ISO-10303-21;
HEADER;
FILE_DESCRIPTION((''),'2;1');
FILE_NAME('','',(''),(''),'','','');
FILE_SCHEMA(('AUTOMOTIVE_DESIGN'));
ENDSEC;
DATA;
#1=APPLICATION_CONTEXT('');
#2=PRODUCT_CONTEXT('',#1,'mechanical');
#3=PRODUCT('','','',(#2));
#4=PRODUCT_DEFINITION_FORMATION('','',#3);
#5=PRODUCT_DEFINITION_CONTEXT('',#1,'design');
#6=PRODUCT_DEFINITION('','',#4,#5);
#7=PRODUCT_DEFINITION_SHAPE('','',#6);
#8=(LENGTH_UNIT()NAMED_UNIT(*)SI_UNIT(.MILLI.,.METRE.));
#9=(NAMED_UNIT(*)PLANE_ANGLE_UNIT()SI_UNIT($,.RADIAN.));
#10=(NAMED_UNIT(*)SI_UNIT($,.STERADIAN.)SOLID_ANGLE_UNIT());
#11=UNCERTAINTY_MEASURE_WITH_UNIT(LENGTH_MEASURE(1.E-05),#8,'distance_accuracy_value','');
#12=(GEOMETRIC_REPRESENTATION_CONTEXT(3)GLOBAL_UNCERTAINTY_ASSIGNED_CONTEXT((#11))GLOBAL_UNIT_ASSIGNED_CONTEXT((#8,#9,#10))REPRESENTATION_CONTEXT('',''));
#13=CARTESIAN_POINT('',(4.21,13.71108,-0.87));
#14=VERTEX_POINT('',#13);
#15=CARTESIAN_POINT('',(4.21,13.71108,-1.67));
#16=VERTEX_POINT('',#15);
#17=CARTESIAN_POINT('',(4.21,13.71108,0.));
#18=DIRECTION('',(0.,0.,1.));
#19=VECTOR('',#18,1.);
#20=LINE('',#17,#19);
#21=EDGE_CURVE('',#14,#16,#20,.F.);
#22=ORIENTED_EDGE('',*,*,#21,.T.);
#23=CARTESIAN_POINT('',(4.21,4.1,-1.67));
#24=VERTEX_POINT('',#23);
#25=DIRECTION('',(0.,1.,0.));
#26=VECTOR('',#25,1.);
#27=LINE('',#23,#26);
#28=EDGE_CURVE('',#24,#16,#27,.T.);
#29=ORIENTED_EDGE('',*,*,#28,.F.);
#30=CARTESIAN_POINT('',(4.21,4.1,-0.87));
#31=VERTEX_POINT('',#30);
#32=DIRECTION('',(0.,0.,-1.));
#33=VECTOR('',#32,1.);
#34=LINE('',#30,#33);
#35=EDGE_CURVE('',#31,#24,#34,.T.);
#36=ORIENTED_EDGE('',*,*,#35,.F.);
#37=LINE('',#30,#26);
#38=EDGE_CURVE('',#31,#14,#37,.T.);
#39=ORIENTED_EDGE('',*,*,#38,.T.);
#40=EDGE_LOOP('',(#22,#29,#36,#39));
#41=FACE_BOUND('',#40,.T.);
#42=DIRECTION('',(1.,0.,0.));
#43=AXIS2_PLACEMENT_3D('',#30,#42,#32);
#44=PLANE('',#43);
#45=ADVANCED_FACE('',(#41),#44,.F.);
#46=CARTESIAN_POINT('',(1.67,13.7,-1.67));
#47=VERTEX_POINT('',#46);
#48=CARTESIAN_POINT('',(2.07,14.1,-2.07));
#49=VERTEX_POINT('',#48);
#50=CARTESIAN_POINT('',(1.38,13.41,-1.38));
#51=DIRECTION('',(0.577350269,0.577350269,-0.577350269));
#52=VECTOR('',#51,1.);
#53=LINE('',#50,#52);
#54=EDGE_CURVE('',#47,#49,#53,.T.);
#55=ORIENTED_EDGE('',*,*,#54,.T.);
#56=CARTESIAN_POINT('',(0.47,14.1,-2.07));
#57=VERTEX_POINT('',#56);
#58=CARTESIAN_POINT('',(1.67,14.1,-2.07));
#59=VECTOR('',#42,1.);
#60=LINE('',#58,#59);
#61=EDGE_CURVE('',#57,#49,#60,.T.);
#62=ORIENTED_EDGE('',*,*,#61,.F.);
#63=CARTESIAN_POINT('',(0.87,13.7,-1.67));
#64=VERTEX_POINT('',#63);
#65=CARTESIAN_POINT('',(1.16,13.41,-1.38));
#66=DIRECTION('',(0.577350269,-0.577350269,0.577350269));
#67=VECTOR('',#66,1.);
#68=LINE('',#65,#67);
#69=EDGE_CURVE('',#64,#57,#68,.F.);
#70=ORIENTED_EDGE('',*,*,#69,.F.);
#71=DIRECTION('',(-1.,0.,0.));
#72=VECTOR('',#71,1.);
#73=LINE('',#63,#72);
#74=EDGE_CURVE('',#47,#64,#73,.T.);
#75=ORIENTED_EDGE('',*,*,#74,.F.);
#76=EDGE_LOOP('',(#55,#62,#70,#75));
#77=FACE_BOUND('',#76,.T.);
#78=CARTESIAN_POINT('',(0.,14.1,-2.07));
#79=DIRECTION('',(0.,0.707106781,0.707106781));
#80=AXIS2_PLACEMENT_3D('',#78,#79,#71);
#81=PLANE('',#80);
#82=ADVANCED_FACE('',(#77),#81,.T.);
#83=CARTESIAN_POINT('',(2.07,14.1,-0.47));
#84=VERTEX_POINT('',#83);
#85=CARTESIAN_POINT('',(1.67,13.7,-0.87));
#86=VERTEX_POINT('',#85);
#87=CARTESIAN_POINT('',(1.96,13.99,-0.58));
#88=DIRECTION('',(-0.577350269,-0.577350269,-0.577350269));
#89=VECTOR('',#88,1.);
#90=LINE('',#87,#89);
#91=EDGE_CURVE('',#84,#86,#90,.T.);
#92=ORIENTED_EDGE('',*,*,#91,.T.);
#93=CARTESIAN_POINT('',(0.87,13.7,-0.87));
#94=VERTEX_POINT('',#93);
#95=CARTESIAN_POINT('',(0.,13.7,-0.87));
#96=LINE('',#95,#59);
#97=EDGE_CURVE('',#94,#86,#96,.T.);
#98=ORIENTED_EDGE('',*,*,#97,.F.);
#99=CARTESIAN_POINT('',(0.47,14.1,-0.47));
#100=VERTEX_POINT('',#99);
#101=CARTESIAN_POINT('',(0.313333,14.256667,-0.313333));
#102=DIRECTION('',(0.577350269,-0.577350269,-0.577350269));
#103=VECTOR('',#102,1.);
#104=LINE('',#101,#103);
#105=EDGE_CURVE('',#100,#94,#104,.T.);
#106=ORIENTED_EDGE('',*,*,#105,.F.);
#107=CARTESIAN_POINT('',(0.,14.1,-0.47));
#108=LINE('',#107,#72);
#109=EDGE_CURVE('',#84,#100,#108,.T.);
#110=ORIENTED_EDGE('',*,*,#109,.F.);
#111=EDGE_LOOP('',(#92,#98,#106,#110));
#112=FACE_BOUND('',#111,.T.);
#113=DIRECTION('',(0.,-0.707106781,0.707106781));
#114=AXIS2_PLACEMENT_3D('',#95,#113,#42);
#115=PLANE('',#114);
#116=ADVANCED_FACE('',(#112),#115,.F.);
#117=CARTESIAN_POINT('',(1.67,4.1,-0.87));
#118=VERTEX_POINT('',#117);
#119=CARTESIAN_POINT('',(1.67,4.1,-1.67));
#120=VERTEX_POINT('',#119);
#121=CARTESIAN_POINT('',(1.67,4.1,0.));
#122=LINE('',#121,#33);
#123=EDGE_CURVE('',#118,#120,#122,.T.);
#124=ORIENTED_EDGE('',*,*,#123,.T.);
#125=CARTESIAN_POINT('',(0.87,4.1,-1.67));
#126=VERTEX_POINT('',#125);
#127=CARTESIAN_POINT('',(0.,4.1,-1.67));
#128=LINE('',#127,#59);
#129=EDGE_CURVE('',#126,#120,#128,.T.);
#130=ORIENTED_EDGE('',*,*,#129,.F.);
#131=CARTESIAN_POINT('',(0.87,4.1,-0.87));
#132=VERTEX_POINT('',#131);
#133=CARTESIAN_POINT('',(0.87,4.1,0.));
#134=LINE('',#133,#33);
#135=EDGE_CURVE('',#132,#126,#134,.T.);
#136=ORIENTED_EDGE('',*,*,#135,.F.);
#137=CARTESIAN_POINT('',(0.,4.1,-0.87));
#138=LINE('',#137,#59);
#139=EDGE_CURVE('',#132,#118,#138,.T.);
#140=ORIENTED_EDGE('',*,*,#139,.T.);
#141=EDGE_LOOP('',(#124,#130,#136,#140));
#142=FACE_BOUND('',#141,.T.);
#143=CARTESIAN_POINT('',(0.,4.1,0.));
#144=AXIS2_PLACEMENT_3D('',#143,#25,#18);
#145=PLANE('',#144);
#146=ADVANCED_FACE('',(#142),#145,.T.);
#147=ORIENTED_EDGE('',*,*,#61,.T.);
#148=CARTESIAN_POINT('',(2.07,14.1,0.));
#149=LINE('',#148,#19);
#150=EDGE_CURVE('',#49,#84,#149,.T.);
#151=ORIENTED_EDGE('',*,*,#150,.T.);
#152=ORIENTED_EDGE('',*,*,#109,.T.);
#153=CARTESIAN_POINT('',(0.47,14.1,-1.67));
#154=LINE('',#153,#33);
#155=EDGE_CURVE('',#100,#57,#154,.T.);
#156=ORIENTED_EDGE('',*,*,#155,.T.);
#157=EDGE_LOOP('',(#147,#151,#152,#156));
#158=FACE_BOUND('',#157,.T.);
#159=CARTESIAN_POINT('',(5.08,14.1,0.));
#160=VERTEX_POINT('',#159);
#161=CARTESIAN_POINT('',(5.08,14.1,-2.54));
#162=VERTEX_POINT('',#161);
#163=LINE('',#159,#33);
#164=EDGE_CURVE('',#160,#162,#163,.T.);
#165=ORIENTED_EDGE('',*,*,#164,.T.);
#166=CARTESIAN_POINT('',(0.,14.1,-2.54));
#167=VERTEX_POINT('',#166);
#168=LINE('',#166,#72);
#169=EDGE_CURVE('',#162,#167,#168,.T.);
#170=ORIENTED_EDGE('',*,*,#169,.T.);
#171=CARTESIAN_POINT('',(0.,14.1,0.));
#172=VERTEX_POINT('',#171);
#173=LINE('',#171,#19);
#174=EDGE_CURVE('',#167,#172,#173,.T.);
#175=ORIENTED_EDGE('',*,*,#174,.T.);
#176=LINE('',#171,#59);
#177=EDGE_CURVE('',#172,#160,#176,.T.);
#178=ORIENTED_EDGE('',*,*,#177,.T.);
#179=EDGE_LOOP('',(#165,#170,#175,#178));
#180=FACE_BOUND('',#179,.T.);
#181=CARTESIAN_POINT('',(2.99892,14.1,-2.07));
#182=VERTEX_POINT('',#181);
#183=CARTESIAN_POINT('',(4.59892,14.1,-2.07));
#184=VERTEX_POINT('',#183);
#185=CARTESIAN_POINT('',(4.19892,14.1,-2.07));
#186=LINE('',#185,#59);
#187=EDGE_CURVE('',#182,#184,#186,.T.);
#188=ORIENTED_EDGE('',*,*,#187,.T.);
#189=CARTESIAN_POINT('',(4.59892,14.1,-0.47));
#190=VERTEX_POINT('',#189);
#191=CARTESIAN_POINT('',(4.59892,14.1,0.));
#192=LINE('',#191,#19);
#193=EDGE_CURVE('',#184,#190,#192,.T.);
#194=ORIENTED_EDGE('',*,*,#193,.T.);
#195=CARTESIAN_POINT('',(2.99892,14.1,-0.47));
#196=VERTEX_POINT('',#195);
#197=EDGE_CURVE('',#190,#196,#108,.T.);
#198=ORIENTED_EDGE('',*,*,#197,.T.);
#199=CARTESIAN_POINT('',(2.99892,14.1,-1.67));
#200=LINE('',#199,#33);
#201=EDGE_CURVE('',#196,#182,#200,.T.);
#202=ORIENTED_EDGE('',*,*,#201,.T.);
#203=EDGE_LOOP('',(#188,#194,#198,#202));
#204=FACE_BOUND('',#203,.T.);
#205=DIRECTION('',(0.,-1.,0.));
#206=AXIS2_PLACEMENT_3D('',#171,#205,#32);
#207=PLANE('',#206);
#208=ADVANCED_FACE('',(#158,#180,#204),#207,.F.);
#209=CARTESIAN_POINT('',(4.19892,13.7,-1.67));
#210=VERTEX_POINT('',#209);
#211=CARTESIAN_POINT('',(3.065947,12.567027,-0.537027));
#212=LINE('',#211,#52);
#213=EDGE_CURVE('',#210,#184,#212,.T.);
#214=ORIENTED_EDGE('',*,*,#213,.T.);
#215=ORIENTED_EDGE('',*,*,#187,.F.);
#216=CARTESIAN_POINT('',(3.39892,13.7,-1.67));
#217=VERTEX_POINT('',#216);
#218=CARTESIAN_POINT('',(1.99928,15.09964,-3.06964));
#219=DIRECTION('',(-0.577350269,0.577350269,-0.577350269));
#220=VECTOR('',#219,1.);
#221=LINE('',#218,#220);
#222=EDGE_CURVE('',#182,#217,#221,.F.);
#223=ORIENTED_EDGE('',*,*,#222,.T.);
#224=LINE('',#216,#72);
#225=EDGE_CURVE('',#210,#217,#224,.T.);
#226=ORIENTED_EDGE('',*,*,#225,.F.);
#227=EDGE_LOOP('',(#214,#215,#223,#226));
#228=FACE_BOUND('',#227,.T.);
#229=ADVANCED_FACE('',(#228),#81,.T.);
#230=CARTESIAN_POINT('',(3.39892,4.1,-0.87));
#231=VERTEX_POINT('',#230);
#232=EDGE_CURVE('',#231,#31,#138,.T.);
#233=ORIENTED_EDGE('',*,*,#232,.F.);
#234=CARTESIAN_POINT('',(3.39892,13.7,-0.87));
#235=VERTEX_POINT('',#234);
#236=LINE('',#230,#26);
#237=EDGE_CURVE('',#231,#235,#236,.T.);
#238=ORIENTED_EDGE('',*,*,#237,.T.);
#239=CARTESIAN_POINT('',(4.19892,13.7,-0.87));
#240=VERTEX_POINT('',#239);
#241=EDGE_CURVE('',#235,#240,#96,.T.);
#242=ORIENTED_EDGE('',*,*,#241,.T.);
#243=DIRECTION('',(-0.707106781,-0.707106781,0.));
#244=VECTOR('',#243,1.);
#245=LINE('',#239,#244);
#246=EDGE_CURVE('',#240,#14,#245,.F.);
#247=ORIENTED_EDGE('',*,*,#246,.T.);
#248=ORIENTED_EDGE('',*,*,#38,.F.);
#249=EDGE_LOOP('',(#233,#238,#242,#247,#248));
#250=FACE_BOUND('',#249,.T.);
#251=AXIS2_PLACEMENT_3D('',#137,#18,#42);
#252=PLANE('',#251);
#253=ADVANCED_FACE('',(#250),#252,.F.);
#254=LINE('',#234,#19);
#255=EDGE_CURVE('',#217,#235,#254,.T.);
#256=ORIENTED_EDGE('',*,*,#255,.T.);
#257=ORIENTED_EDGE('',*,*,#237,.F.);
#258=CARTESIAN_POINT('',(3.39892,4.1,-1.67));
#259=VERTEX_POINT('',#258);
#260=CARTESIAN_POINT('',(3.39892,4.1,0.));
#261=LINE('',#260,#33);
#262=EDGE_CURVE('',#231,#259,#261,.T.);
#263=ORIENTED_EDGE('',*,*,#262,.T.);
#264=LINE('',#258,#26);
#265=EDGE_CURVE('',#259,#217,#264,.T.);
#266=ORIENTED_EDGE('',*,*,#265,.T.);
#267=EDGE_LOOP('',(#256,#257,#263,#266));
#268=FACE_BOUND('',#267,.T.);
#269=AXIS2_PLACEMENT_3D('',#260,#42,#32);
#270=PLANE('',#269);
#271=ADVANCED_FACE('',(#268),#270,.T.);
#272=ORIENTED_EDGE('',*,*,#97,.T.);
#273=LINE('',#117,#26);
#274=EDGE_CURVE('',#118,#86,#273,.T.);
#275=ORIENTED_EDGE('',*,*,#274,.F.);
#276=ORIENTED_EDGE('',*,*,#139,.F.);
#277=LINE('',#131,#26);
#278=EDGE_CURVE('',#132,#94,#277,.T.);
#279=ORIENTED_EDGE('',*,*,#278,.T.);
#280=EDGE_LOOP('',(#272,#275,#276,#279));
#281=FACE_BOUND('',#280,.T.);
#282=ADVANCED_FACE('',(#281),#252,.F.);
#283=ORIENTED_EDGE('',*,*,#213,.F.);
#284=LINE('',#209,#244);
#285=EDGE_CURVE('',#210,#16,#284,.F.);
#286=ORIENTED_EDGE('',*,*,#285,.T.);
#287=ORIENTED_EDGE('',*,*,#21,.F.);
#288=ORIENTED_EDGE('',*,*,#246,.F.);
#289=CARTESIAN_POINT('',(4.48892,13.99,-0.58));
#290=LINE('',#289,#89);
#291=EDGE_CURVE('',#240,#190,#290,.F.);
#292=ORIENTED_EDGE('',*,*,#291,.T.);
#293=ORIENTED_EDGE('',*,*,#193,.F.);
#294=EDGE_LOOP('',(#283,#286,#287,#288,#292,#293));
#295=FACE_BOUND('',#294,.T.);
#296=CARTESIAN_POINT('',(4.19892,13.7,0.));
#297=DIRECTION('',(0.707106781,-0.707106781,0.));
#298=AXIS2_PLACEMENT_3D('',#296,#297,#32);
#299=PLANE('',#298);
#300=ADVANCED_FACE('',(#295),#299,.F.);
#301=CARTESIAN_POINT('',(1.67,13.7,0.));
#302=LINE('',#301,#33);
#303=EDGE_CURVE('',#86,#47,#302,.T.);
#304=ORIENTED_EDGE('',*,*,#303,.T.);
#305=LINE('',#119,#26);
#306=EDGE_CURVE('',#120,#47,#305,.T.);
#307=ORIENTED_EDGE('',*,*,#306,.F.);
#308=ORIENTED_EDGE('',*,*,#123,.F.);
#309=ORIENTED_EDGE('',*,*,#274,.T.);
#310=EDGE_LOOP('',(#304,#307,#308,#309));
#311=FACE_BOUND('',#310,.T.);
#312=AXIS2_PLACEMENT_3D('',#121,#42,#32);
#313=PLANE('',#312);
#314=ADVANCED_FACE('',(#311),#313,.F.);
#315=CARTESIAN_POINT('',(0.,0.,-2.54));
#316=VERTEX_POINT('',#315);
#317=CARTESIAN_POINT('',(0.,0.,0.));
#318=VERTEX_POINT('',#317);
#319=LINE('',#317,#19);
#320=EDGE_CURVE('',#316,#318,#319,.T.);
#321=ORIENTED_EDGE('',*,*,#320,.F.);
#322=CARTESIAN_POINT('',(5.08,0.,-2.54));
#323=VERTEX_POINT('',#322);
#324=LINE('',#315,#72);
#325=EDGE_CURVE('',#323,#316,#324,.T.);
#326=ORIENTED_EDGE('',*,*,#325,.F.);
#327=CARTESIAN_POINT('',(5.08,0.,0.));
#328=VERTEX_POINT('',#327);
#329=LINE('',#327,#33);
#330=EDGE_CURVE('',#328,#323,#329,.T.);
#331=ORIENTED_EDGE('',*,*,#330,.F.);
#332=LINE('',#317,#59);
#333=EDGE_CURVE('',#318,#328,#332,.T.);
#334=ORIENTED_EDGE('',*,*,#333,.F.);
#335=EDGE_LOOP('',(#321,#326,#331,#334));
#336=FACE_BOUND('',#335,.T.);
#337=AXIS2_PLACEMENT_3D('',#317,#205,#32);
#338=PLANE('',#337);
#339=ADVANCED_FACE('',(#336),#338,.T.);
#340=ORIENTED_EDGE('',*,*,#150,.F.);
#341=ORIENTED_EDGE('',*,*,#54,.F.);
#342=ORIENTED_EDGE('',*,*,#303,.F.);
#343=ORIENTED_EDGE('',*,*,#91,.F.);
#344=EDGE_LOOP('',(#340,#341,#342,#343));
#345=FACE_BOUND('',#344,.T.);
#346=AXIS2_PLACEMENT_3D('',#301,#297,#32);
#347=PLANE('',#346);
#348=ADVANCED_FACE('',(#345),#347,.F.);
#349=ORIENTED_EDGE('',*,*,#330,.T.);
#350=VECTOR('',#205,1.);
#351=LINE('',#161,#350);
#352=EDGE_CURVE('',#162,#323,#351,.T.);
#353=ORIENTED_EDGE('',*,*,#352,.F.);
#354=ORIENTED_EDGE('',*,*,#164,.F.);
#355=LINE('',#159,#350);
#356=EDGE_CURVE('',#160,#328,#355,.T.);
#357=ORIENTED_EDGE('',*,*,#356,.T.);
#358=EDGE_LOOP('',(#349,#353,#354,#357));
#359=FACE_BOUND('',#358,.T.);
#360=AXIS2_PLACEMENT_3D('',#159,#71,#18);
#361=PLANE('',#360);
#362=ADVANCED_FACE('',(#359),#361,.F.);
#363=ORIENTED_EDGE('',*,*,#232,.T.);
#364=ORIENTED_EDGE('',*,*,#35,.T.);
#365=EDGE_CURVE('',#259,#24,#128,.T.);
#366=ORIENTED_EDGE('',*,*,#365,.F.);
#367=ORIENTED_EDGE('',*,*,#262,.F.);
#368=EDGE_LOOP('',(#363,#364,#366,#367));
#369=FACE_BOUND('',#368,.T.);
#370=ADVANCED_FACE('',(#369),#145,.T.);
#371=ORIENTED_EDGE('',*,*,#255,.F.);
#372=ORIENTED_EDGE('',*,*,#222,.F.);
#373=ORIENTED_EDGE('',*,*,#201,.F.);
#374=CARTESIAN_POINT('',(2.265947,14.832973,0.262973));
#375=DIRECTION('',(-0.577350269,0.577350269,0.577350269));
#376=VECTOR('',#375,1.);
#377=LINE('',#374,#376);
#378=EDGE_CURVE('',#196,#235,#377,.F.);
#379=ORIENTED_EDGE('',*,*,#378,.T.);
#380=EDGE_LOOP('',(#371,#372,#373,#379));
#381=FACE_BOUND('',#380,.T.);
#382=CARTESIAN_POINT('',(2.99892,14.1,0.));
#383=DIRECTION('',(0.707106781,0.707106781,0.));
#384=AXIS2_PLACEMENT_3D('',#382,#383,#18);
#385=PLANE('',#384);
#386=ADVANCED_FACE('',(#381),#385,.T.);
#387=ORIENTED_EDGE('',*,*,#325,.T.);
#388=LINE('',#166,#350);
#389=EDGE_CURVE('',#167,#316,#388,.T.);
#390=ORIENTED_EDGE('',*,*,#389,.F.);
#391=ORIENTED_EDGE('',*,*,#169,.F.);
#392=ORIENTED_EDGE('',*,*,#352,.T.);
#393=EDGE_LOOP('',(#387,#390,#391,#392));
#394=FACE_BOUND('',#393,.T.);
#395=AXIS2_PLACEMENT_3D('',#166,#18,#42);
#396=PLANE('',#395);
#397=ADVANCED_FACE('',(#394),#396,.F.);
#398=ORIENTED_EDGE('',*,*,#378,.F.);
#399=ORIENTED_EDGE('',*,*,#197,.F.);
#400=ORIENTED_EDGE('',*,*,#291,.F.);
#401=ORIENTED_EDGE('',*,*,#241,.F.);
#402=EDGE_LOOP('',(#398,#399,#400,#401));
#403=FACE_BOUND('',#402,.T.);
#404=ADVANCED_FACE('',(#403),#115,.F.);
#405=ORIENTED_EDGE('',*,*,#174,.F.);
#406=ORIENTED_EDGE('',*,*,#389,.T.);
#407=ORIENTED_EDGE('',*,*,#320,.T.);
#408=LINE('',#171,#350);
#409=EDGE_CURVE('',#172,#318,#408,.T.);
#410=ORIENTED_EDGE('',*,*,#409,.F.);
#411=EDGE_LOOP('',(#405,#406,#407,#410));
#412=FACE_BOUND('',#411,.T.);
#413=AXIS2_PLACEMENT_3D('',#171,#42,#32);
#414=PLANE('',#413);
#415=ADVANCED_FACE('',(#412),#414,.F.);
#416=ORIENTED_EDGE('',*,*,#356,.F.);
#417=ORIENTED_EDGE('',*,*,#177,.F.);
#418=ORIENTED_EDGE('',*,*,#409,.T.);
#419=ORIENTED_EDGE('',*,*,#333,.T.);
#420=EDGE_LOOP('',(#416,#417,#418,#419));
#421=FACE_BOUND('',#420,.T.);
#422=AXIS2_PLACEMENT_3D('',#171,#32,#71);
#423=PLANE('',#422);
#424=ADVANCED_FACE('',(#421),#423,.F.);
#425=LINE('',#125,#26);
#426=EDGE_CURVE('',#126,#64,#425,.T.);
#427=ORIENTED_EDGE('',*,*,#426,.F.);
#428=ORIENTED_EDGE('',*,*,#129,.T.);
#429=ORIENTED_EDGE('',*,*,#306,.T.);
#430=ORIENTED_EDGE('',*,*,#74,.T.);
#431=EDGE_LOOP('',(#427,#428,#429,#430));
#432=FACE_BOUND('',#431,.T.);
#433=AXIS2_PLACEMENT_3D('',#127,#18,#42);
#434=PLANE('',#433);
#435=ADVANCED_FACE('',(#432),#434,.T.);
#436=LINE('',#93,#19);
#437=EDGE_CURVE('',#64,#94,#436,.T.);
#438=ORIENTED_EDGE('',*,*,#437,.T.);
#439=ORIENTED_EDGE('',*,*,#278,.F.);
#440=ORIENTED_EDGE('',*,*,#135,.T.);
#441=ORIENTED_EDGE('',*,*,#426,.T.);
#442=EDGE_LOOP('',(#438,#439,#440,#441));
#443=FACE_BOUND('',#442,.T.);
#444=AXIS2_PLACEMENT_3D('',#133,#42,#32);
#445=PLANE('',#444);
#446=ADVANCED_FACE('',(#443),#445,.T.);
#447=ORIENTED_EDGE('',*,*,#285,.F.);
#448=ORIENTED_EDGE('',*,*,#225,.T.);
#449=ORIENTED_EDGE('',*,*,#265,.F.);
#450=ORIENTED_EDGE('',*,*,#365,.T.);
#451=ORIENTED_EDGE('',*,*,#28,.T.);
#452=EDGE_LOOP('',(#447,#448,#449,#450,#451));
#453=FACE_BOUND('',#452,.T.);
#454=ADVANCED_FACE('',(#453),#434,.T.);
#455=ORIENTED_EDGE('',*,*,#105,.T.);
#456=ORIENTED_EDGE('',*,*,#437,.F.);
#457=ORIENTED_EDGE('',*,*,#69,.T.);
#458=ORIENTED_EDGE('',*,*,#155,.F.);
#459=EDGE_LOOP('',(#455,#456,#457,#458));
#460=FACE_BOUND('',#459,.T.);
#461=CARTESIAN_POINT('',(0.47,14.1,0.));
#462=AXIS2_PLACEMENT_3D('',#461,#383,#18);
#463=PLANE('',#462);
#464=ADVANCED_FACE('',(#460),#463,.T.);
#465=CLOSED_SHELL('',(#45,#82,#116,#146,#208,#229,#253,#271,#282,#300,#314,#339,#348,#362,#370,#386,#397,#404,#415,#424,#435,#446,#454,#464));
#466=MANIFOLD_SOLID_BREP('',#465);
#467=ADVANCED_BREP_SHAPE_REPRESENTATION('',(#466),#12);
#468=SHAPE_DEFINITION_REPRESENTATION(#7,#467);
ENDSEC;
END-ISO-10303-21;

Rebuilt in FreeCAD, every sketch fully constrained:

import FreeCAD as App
import Part
import Sketcher

V = App.Vector


def edges_at(feature, points):
    """Names of the edges that pass closest to the given points."""
    edges = feature.Shape.Edges
    near = lambda p: min(range(len(edges)), key=lambda i: edges[i].distToShape(Part.Vertex(*p))[0])
    return sorted({f"Edge{near(p) + 1}" for p in points})


def add_polygon(sketch, points):
    """Adds a closed chain of lines whose ends are joined by coincident constraints."""
    first, n = sketch.GeometryCount, len(points)
    for a, b in zip(points, points[1:] + points[:1]):
        sketch.addGeometry(Part.LineSegment(App.Vector(*a, 0), App.Vector(*b, 0)), False)
    for i in range(n):
        sketch.addConstraint(Sketcher.Constraint("Coincident", first + i, 2, first + (i + 1) % n, 1))

doc = App.newDocument("Part")
params = doc.addObject("Spreadsheet::Sheet", "Params")
for row, (alias, value) in enumerate([
    ("sketch1_width", "5.08 mm"),
    ("sketch1_height", "2.54 mm"),
    ("pad1_length", "14.1 mm"),
    ("sketch2_width", "0.8 mm"),
    ("pocket1_length", "10 mm"),
    ("chamfer_size", "0.4 mm"),
    ("sketch3_width", "0.8 mm"),
    ("pocket2_length", "10 mm"),
], start=1):
    params.set(f"A{row}", alias)
    params.set(f"B{row}", "=" + value)
    params.setAlias(f"B{row}", alias)

body = doc.addObject("PartDesign::Body", "Body")

sketch1 = body.newObject("Sketcher::SketchObject", "Sketch")
sketch1.AttachmentSupport = (doc.getObject("XZ_Plane"), [""])
sketch1.MapMode = "FlatFace"
add_polygon(sketch1, [(0, -2.5), (0, 0), (5.1, 0), (5.1, -2.5)])
sketch1.addConstraint([
    Sketcher.Constraint("Vertical", 0),
    Sketcher.Constraint("Horizontal", 1),
    Sketcher.Constraint("Vertical", 2),
    Sketcher.Constraint("Horizontal", 3),
    Sketcher.Constraint("Coincident", 0, 2, -1, 1),
    Sketcher.Constraint("DistanceX", 1, 1, 1, 2, 5.08),
    Sketcher.Constraint("DistanceY", 0, 1, 0, 2, 2.54),
])
sketch1.setExpression("Constraints[9]", "Params.sketch1_width")
sketch1.setExpression("Constraints[10]", "Params.sketch1_height")
pad1 = body.newObject("PartDesign::Pad", "Pad")
pad1.Profile = sketch1
pad1.setExpression("Length", "Params.pad1_length")
pad1.Reversed = True

sketch2 = body.newObject("Sketcher::SketchObject", "Sketch001")
sketch2.AttachmentSupport = (doc.getObject("XZ_Plane"), [""])
sketch2.MapMode = "FlatFace"
sketch2.AttachmentOffset = App.Placement(V(0, 0, -14.1), App.Rotation())
add_polygon(sketch2, [(0.9, -1.7), (0.9, -0.9), (1.7, -0.9), (1.7, -1.7)])
add_polygon(sketch2, [(3.4, -1.7), (3.4, -0.9), (4.2, -0.9), (4.2, -1.7)])
sketch2.addConstraint([
    Sketcher.Constraint("Vertical", 0),
    Sketcher.Constraint("Horizontal", 1),
    Sketcher.Constraint("Vertical", 2),
    Sketcher.Constraint("Horizontal", 3),
    Sketcher.Constraint("Vertical", 4),
    Sketcher.Constraint("Horizontal", 5),
    Sketcher.Constraint("Vertical", 6),
    Sketcher.Constraint("Horizontal", 7),
    Sketcher.Constraint("Horizontal", 1, 2, 4, 2),
    Sketcher.Constraint("Horizontal", 3, 2, 6, 2),
    Sketcher.Constraint("Equal", 3, 5),
    Sketcher.Constraint("Equal", 7, 0),
    Sketcher.Constraint("DistanceX", 1, 1, 1, 2, 0.8),
    Sketcher.Constraint("DistanceX", -1, 1, 0, 2, 0.87),
    Sketcher.Constraint("DistanceY", 0, 2, -1, 1, 0.87),
    Sketcher.Constraint("DistanceX", -1, 1, 4, 2, 3.39892),
])
sketch2.setExpression("Constraints[20]", "Params.sketch2_width")
pocket1 = body.newObject("PartDesign::Pocket", "Pocket")
pocket1.Profile = sketch2
pocket1.setExpression("Length", "Params.pocket1_length")
pocket1.Reversed = True
doc.recompute()

chamfer = body.newObject("PartDesign::Chamfer", "Chamfer")
chamfer.Base = (pocket1, edges_at(pocket1, [
    (0.87, 14.1, -1.27),
    (1.27, 14.1, -1.67),
    (1.27, 14.1, -0.87),
    (1.67, 14.1, -1.27),
    (3.399, 14.1, -1.27),
    (3.799, 14.1, -1.67),
    (3.799, 14.1, -0.87),
    (4.199, 14.1, -1.27),
]))
chamfer.setExpression("Size", "Params.chamfer_size")

sketch3 = body.newObject("Sketcher::SketchObject", "Sketch002")
sketch3.AttachmentSupport = (doc.getObject("XZ_Plane"), [""])
sketch3.MapMode = "FlatFace"
sketch3.AttachmentOffset = App.Placement(V(0, 0, -14.1), App.Rotation())
add_polygon(sketch3, [(0.9, -1.7), (0.9, -0.9), (1.7, -0.9), (1.7, -1.7)])
add_polygon(sketch3, [(3.4, -1.7), (3.4, -0.9), (4.2, -0.9), (4.2, -1.7)])
sketch3.addConstraint([
    Sketcher.Constraint("Vertical", 0),
    Sketcher.Constraint("Horizontal", 1),
    Sketcher.Constraint("Vertical", 2),
    Sketcher.Constraint("Horizontal", 3),
    Sketcher.Constraint("Vertical", 4),
    Sketcher.Constraint("Horizontal", 5),
    Sketcher.Constraint("Vertical", 6),
    Sketcher.Constraint("Horizontal", 7),
    Sketcher.Constraint("Horizontal", 1, 2, 4, 2),
    Sketcher.Constraint("Horizontal", 3, 2, 6, 2),
    Sketcher.Constraint("Equal", 3, 5),
    Sketcher.Constraint("Equal", 7, 0),
    Sketcher.Constraint("DistanceX", 1, 1, 1, 2, 0.8),
    Sketcher.Constraint("DistanceX", -1, 1, 0, 2, 0.87),
    Sketcher.Constraint("DistanceY", 0, 2, -1, 1, 0.87),
    Sketcher.Constraint("DistanceX", -1, 1, 4, 2, 3.41),
])
sketch3.setExpression("Constraints[20]", "Params.sketch3_width")
pocket2 = body.newObject("PartDesign::Pocket", "Pocket001")
pocket2.Profile = sketch3
pocket2.setExpression("Length", "Params.pocket2_length")
pocket2.Reversed = True

doc.recompute()
